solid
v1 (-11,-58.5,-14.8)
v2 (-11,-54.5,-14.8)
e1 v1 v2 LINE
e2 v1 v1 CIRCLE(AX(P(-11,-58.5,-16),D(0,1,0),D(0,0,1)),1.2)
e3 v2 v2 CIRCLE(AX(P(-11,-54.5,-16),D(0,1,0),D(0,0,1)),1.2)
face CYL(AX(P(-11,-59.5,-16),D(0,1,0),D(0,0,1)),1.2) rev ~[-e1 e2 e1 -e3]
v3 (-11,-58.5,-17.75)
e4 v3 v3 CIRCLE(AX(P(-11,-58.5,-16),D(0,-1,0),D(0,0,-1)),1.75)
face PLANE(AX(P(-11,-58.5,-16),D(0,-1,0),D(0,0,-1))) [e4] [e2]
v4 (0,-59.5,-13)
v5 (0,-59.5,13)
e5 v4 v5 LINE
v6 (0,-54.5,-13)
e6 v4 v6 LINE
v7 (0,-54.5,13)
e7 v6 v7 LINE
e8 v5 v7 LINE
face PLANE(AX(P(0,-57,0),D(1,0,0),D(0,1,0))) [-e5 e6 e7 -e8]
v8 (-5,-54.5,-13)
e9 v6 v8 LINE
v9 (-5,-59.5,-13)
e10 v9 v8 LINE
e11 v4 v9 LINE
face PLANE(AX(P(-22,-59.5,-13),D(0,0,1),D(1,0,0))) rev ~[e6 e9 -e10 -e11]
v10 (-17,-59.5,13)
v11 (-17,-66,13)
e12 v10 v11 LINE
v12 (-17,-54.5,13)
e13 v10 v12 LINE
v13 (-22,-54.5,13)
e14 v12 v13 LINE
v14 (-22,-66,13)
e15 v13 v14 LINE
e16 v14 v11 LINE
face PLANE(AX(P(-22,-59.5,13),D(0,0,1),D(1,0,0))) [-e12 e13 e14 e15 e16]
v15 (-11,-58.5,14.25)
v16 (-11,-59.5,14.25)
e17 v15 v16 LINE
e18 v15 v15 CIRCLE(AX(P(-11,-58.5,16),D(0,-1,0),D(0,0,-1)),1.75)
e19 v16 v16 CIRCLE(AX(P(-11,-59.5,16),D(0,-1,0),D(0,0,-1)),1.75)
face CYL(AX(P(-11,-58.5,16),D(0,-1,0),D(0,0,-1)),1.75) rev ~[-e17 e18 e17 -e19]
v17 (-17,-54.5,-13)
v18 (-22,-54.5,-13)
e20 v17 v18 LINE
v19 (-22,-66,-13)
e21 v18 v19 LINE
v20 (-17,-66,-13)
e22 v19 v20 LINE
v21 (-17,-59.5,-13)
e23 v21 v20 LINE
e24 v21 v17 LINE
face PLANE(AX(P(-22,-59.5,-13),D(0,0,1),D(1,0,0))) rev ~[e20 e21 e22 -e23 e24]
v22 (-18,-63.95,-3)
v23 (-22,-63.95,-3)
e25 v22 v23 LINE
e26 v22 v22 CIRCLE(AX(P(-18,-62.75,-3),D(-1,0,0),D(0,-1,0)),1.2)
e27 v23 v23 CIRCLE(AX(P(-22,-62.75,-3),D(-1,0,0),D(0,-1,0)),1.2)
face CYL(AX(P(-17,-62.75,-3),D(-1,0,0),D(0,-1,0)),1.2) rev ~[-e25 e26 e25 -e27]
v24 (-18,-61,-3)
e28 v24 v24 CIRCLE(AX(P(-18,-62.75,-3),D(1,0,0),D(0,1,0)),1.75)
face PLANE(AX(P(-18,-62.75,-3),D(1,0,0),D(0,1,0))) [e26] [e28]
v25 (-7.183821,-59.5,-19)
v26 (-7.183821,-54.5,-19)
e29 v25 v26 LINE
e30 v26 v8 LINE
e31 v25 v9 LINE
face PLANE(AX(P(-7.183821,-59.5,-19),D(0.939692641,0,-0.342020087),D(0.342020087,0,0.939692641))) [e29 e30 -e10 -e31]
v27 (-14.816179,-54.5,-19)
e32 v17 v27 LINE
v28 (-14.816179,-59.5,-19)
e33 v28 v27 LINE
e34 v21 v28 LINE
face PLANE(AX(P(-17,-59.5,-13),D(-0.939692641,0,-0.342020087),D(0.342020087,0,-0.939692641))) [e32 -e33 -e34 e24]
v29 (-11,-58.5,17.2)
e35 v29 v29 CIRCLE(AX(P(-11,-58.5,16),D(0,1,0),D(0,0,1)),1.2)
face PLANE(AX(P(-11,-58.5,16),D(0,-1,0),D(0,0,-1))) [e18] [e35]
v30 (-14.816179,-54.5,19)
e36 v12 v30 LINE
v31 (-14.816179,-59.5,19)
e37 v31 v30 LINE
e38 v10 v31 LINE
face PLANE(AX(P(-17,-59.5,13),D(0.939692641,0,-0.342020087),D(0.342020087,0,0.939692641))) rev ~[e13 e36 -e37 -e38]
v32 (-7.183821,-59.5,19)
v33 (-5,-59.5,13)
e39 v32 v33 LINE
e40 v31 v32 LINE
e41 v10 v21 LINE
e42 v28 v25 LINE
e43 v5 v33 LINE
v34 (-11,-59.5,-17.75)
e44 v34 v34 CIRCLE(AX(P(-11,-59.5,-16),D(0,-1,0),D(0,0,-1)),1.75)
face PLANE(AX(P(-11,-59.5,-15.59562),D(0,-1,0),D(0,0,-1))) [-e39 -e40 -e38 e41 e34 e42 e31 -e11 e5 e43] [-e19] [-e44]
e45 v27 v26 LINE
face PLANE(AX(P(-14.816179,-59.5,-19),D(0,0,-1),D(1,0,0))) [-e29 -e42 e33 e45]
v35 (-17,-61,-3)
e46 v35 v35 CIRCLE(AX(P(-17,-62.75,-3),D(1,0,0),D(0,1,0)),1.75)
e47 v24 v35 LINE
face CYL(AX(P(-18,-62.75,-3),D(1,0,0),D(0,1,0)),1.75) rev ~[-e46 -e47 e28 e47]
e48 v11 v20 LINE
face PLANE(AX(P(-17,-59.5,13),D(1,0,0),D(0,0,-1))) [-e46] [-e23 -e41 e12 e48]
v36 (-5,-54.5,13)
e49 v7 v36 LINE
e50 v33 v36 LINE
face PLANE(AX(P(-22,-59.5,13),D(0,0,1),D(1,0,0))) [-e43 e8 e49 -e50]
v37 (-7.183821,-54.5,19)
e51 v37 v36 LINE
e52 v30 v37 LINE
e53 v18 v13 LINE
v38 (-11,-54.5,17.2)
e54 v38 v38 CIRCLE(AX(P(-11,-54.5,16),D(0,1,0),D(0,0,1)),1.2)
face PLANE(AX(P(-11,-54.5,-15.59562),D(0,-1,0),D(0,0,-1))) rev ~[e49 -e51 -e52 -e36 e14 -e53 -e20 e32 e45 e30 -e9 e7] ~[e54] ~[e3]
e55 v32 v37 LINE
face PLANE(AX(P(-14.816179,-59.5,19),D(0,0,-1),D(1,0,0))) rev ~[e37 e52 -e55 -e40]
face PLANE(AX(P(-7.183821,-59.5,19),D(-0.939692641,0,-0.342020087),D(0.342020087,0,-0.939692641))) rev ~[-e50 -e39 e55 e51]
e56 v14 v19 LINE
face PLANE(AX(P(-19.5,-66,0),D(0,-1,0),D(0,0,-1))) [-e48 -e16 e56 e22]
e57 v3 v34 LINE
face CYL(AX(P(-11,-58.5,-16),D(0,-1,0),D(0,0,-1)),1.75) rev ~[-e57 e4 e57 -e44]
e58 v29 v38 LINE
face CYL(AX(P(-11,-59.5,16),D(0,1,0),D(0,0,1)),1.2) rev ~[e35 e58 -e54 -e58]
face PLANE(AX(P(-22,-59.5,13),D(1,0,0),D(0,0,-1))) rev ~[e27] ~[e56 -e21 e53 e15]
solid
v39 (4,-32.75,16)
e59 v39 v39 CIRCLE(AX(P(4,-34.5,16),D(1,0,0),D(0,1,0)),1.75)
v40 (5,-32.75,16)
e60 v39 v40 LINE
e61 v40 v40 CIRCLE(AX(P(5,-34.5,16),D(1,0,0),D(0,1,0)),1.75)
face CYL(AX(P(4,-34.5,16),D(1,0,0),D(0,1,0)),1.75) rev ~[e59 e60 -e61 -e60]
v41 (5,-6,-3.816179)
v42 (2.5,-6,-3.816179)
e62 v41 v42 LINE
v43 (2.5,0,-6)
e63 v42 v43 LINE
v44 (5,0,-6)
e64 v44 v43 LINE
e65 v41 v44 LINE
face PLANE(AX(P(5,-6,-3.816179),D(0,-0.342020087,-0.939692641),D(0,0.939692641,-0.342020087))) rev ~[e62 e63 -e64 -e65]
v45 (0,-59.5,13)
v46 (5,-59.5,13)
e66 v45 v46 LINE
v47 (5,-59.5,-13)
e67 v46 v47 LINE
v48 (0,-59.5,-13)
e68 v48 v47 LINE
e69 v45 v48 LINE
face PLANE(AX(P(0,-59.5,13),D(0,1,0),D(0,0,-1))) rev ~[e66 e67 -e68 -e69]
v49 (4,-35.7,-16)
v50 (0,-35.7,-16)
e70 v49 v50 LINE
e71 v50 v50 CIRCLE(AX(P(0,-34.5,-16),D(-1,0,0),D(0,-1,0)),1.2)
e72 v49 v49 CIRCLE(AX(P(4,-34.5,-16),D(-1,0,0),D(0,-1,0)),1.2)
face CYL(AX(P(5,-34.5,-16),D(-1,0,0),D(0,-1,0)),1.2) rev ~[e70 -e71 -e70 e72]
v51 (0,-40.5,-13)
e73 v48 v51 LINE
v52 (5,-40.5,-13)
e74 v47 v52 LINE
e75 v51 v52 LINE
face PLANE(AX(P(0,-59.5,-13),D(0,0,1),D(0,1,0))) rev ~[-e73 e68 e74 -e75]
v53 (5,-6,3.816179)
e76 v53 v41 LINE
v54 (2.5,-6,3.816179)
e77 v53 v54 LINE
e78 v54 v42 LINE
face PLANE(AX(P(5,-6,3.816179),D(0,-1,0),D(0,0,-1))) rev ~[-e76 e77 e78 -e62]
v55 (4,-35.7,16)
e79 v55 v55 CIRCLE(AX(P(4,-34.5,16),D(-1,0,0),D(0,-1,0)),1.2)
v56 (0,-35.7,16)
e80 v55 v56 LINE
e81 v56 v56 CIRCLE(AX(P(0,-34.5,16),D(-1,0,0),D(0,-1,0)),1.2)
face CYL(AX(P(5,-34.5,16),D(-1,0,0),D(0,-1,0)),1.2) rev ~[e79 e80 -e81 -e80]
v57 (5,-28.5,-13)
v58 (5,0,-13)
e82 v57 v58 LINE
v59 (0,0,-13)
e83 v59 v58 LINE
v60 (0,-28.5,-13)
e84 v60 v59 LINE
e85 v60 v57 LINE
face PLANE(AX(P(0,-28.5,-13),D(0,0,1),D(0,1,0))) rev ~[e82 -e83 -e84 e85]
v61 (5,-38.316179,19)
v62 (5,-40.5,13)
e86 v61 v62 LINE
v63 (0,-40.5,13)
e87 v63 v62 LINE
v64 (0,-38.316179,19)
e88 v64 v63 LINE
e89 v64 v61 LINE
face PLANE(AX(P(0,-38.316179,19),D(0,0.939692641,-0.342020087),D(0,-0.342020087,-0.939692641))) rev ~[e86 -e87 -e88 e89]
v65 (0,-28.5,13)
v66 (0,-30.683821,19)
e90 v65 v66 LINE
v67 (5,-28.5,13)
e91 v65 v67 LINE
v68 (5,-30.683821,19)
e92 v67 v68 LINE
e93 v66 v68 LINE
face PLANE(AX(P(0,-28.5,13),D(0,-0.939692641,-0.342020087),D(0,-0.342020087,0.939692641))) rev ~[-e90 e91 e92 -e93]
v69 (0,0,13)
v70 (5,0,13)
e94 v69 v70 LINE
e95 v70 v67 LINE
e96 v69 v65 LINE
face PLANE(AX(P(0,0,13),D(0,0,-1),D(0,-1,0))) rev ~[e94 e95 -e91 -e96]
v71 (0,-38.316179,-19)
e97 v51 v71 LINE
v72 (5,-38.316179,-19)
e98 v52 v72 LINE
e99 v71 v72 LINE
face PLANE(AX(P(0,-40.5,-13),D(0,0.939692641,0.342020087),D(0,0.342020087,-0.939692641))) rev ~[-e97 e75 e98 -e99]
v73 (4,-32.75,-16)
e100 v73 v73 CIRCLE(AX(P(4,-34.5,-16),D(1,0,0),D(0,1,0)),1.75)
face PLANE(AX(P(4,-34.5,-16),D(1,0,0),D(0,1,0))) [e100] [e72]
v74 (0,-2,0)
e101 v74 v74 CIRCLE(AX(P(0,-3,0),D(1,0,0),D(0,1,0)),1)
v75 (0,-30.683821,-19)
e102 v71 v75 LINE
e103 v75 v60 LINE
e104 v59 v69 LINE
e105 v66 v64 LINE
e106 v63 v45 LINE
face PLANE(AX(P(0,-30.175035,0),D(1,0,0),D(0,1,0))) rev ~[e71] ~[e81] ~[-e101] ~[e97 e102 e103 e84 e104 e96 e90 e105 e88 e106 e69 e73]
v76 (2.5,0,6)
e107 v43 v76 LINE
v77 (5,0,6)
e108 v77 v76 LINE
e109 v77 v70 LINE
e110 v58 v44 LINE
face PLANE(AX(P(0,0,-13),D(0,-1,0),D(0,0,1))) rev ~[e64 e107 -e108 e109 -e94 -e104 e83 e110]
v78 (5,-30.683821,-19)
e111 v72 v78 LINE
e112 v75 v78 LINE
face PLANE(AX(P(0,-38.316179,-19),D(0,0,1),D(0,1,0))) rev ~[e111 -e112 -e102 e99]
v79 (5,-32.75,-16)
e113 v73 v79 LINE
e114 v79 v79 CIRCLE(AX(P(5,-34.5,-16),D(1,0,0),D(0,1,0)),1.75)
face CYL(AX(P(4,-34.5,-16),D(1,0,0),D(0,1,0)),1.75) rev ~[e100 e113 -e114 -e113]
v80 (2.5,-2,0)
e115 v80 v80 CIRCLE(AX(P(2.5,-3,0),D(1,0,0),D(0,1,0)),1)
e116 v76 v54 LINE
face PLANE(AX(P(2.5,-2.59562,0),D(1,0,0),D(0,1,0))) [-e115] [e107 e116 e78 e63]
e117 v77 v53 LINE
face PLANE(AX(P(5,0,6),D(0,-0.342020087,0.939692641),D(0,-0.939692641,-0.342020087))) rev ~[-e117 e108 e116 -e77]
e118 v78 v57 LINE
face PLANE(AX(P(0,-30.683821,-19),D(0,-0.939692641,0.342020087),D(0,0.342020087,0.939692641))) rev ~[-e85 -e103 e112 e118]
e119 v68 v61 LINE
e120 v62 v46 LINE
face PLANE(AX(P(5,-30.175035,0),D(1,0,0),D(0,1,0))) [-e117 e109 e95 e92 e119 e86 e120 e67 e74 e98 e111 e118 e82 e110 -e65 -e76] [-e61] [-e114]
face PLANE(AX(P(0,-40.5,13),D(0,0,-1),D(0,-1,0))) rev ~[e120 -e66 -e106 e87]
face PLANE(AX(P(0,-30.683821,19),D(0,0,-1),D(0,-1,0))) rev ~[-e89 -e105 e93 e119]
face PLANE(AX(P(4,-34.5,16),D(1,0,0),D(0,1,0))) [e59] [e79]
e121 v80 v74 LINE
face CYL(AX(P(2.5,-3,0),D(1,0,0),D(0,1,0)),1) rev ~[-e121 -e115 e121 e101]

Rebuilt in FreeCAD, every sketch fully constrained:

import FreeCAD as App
import Part
import Sketcher

V = App.Vector
Q = App.Units.Quantity

doc = App.newDocument("Part")
body = doc.addObject("PartDesign::Body", "Body")

sketch1 = body.newObject("Sketcher::SketchObject", "Sketch")
sketch1.AttachmentSupport = (doc.getObject("YZ_Plane"), [""])
sketch1.MapMode = "FlatFace"
sketch1.addGeometry([
    Part.LineSegment(V(-60, 13, 0), V(-60, -13, 0)),
    Part.LineSegment(V(-60, -13, 0), V(-40, -13, 0)),
    Part.LineSegment(V(-40, -13, 0), V(-38, -19, 0)),
    Part.LineSegment(V(-38, -19, 0), V(-31, -19, 0)),
    Part.LineSegment(V(-31, -19, 0), V(-28, -13, 0)),
    Part.LineSegment(V(-28, -13, 0), V(0, -13, 0)),
    Part.LineSegment(V(0, -13, 0), V(0, 13, 0)),
    Part.LineSegment(V(0, 13, 0), V(-28, 13, 0)),
    Part.LineSegment(V(-28, 13, 0), V(-31, 19, 0)),
    Part.LineSegment(V(-31, 19, 0), V(-38, 19, 0)),
    Part.LineSegment(V(-38, 19, 0), V(-40, 13, 0)),
    Part.LineSegment(V(-40, 13, 0), V(-60, 13, 0)),
], False)
sketch1.addConstraint([
    Sketcher.Constraint("Coincident", 0, 2, 1, 1),
    Sketcher.Constraint("Coincident", 1, 2, 2, 1),
    Sketcher.Constraint("Coincident", 2, 2, 3, 1),
    Sketcher.Constraint("Coincident", 3, 2, 4, 1),
    Sketcher.Constraint("Coincident", 4, 2, 5, 1),
    Sketcher.Constraint("Coincident", 5, 2, 6, 1),
    Sketcher.Constraint("Coincident", 6, 2, 7, 1),
    Sketcher.Constraint("Coincident", 7, 2, 8, 1),
    Sketcher.Constraint("Coincident", 8, 2, 9, 1),
    Sketcher.Constraint("Coincident", 9, 2, 10, 1),
    Sketcher.Constraint("Coincident", 10, 2, 11, 1),
    Sketcher.Constraint("Coincident", 11, 2, 0, 1),
    Sketcher.Constraint("Vertical", 0),
    Sketcher.Constraint("Horizontal", 1),
    Sketcher.Constraint("Horizontal", 3),
    Sketcher.Constraint("Horizontal", 5),
    Sketcher.Constraint("Vertical", 6),
    Sketcher.Constraint("Horizontal", 7),
    Sketcher.Constraint("Horizontal", 9),
    Sketcher.Constraint("Horizontal", 11),
    Sketcher.Constraint("Symmetric", 5, 2, 6, 2, -1, 1),
    Sketcher.Constraint("Symmetric", 3, 2, 8, 2, -1),
    Sketcher.Constraint("Symmetric", 1, 2, 10, 2, -1),
    Sketcher.Constraint("Parallel", 2, 8),
    Sketcher.Constraint("Parallel", 4, 10),
    Sketcher.Constraint("Horizontal", 1, 2, 4, 2),
    Sketcher.Constraint("Vertical", 4, 2, 7, 2),
    Sketcher.Constraint("DistanceX", 1, 1, 1, 2, Q("19 mm")),
    Sketcher.Constraint("DistanceY", 0, 2, 0, 1, Q("26 mm")),
    Sketcher.Constraint("Angle", 2, Q("-70.000003 deg")),
    Sketcher.Constraint("DistanceX", 5, 1, 5, 2, Q("28.5 mm")),
    Sketcher.Constraint("DistanceY", 2, 2, -1, 1, Q("19 mm")),
    Sketcher.Constraint("DistanceX", 1, 2, 4, 2, Q("12 mm")),
])
pad1 = body.newObject("PartDesign::Pad", "Pad")
pad1.Profile = sketch1
pad1.Length = 5

sketch2 = body.newObject("Sketcher::SketchObject", "Sketch001")
sketch2.AttachmentSupport = (doc.getObject("YZ_Plane"), [""])
sketch2.MapMode = "FlatFace"
sketch2.AttachmentOffset = App.Placement(V(0, 0, 5), App.Rotation())
sketch2.addGeometry([
    Part.LineSegment(V(0, 6, 0), V(-6, 4, 0)),
    Part.LineSegment(V(-6, 4, 0), V(-6, -4, 0)),
    Part.LineSegment(V(-6, -4, 0), V(0, -6, 0)),
    Part.LineSegment(V(0, -6, 0), V(0, 6, 0)),
], False)
sketch2.addConstraint([
    Sketcher.Constraint("Coincident", 0, 2, 1, 1),
    Sketcher.Constraint("Coincident", 1, 2, 2, 1),
    Sketcher.Constraint("Coincident", 2, 2, 3, 1),
    Sketcher.Constraint("Coincident", 3, 2, 0, 1),
    Sketcher.Constraint("Vertical", 1),
    Sketcher.Constraint("Vertical", 3),
    Sketcher.Constraint("Symmetric", 2, 2, 3, 2, -1, 1),
    Sketcher.Constraint("Equal", 0, 2),
    Sketcher.Constraint("DistanceY", 3, 1, 3, 2, Q("12 mm")),
    Sketcher.Constraint("Angle", 0, Q("-160.000003 deg")),
    Sketcher.Constraint("DistanceX", 0, 2, -1, 1, Q("6 mm")),
])
pocket1 = body.newObject("PartDesign::Pocket", "Pocket")
pocket1.Profile = sketch2
pocket1.Length = 2.5

sketch3 = body.newObject("Sketcher::SketchObject", "Sketch002")
sketch3.AttachmentSupport = (doc.getObject("YZ_Plane"), [""])
sketch3.MapMode = "FlatFace"
sketch3.AttachmentOffset = App.Placement(V(0, 0, 5), App.Rotation())
sketch3.addGeometry([
    Part.Circle(V(-34.5, 16, 0), V(0, 0, 1), 1.2),
    Part.Circle(V(-34.5, -16, 0), V(0, 0, 1), 1.2),
], False)
sketch3.addConstraint([
    Sketcher.Constraint("Equal", 0, 1),
    Sketcher.Constraint("Symmetric", 0, 3, 1, 3, -1),
    Sketcher.Constraint("Diameter", 0, Q("2.4 mm")),
    Sketcher.Constraint("DistanceY", -1, 1, 0, 3, Q("16 mm")),
    Sketcher.Constraint("DistanceX", 0, 3, -1, 1, Q("34.5 mm")),
])
doc.recompute()
hole = body.newObject("PartDesign::Hole", "Hole")
hole.Profile = sketch3
hole.ThreadType = "None"
hole.Diameter = 2.4
hole.DepthType = "Dimension"
hole.Depth = 25
hole.DrillPoint = "Flat"
hole.HoleCutType = "Counterbore"
hole.HoleCutDiameter = 3.5
hole.HoleCutDepth = 1

sketch4 = body.newObject("Sketcher::SketchObject", "Sketch003")
sketch4.AttachmentSupport = (doc.getObject("YZ_Plane"), [""])
sketch4.MapMode = "FlatFace"
sketch4.AttachmentOffset = App.Placement(V(0, 0, 2.5), App.Rotation())
sketch4.addGeometry(Part.Circle(V(-3, 0, 0), V(0, 0, 1), 1), False)
sketch4.addConstraint([
    Sketcher.Constraint("PointOnObject", 0, 3, -1),
    Sketcher.Constraint("Diameter", 0, Q("2 mm")),
    Sketcher.Constraint("DistanceX", 0, 3, -1, 1, Q("3 mm")),
])
pocket2 = body.newObject("PartDesign::Pocket", "Pocket001")
pocket2.Profile = sketch4
pocket2.Length = 5
body2 = doc.addObject("PartDesign::Body", "Body001")

sketch5 = body2.newObject("Sketcher::SketchObject", "Sketch004")
sketch5.AttachmentSupport = (doc.getObject("YZ_Plane001"), [""])
sketch5.MapMode = "FlatFace"
sketch5.addGeometry([
    Part.LineSegment(V(-60, 13, 0), V(-60, -13, 0)),
    Part.LineSegment(V(-60, -13, 0), V(-54, -13, 0)),
    Part.LineSegment(V(-54, -13, 0), V(-54, 13, 0)),
    Part.LineSegment(V(-54, 13, 0), V(-60, 13, 0)),
], False)
sketch5.addConstraint([
    Sketcher.Constraint("Coincident", 0, 2, 1, 1),
    Sketcher.Constraint("Coincident", 1, 2, 2, 1),
    Sketcher.Constraint("Coincident", 2, 2, 3, 1),
    Sketcher.Constraint("Coincident", 3, 2, 0, 1),
    Sketcher.Constraint("Vertical", 0),
    Sketcher.Constraint("Horizontal", 1),
    Sketcher.Constraint("Vertical", 2),
    Sketcher.Constraint("Horizontal", 3),
    Sketcher.Constraint("DistanceX", 1, 1, 1, 2, Q("5 mm")),
    Sketcher.Constraint("DistanceY", 0, 2, 0, 1, Q("26 mm")),
    Sketcher.Constraint("DistanceY", 0, 2, -1, 1, Q("13 mm")),
    Sketcher.Constraint("DistanceX", 0, 2, -1, 1, Q("59.5 mm")),
])
pad2 = body2.newObject("PartDesign::Pad", "Pad001")
pad2.Profile = sketch5
pad2.Length = 22
pad2.Reversed = True

sketch6 = body2.newObject("Sketcher::SketchObject", "Sketch005")
sketch6.AttachmentSupport = (doc.getObject("XZ_Plane001"), [""])
sketch6.MapMode = "FlatFace"
sketch6.AttachmentOffset = App.Placement(V(0, 0, 59.5), App.Rotation())
sketch6.addGeometry([
    Part.LineSegment(V(-17, 13, 0), V(-22, 13, 0)),
    Part.LineSegment(V(-22, 13, 0), V(-22, -13, 0)),
    Part.LineSegment(V(-22, -13, 0), V(-17, -13, 0)),
    Part.LineSegment(V(-17, -13, 0), V(-17, 13, 0)),
], False)
sketch6.addConstraint([
    Sketcher.Constraint("Coincident", 0, 2, 1, 1),
    Sketcher.Constraint("Coincident", 1, 2, 2, 1),
    Sketcher.Constraint("Coincident", 2, 2, 3, 1),
    Sketcher.Constraint("Coincident", 3, 2, 0, 1),
    Sketcher.Constraint("Horizontal", 0),
    Sketcher.Constraint("Vertical", 1),
    Sketcher.Constraint("Horizontal", 2),
    Sketcher.Constraint("Vertical", 3),
    Sketcher.Constraint("DistanceX", 0, 2, 0, 1, Q("5 mm")),
    Sketcher.Constraint("DistanceY", 1, 2, 1, 1, Q("26 mm")),
    Sketcher.Constraint("DistanceX", 0, 2, -1, 1, Q("22 mm")),
    Sketcher.Constraint("DistanceY", -1, 1, 0, 2, Q("13 mm")),
])
pad3 = body2.newObject("PartDesign::Pad", "Pad002")
pad3.Profile = sketch6
pad3.Length = 6.5

sketch7 = body2.newObject("Sketcher::SketchObject", "Sketch006")
sketch7.AttachmentSupport = (doc.getObject("YZ_Plane001"), [""])
sketch7.MapMode = "FlatFace"
sketch7.AttachmentOffset = App.Placement(V(0, 0, -17), App.Rotation())
sketch7.addGeometry(Part.Circle(V(-62.8, -3, 0), V(0, 0, 1), 1.2), False)
sketch7.addConstraint([
    Sketcher.Constraint("Diameter", 0, Q("2.4 mm")),
    Sketcher.Constraint("DistanceY", 0, 3, -1, 1, Q("3 mm")),
    Sketcher.Constraint("DistanceX", 0, 3, -1, 1, Q("62.75 mm")),
])
doc.recompute()
hole2 = body2.newObject("PartDesign::Hole", "Hole001")
hole2.Profile = sketch7
hole2.ThreadType = "None"
hole2.Diameter = 2.4
hole2.DepthType = "Dimension"
hole2.Depth = 25
hole2.DrillPoint = "Flat"
hole2.HoleCutType = "Counterbore"
hole2.HoleCutDiameter = 3.5
hole2.HoleCutDepth = 1

sketch8 = body2.newObject("Sketcher::SketchObject", "Sketch007")
sketch8.AttachmentSupport = (doc.getObject("XZ_Plane001"), [""])
sketch8.MapMode = "FlatFace"
sketch8.AttachmentOffset = App.Placement(V(0, 0, 59.5), App.Rotation())
sketch8.addGeometry([
    Part.LineSegment(V(-17, -13, 0), V(-15, -19, 0)),
    Part.LineSegment(V(-15, -19, 0), V(-7, -19, 0)),
    Part.LineSegment(V(-7, -19, 0), V(-5, -13, 0)),
    Part.LineSegment(V(-5, -13, 0), V(-17, -13, 0)),
    Part.LineSegment(V(-15, 19, 0), V(-17, 13, 0)),
    Part.LineSegment(V(-17, 13, 0), V(-5, 13, 0)),
    Part.LineSegment(V(-5, 13, 0), V(-7, 19, 0)),
    Part.LineSegment(V(-7, 19, 0), V(-15, 19, 0)),
], False)
sketch8.addConstraint([
    Sketcher.Constraint("Coincident", 0, 2, 1, 1),
    Sketcher.Constraint("Coincident", 1, 2, 2, 1),
    Sketcher.Constraint("Coincident", 2, 2, 3, 1),
    Sketcher.Constraint("Coincident", 3, 2, 0, 1),
    Sketcher.Constraint("Coincident", 4, 2, 5, 1),
    Sketcher.Constraint("Coincident", 5, 2, 6, 1),
    Sketcher.Constraint("Coincident", 6, 2, 7, 1),
    Sketcher.Constraint("Coincident", 7, 2, 4, 1),
    Sketcher.Constraint("Horizontal", 1),
    Sketcher.Constraint("Horizontal", 3),
    Sketcher.Constraint("Horizontal", 5),
    Sketcher.Constraint("Horizontal", 7),
    Sketcher.Constraint("Symmetric", 3, 2, 4, 2, -1),
    Sketcher.Constraint("Symmetric", 1, 2, 6, 2, -1),
    Sketcher.Constraint("Parallel", 2, 4),
    Sketcher.Constraint("Parallel", 0, 6),
    Sketcher.Constraint("Vertical", 2, 2, 5, 2),
    Sketcher.Constraint("DistanceX", 3, 2, 3, 1, Q("12 mm")),
    Sketcher.Constraint("Angle", 0, Q("-70.000003 deg")),
    Sketcher.Constraint("DistanceY", 0, 2, -1, 1, Q("19 mm")),
    Sketcher.Constraint("DistanceX", 2, 2, -1, 1, Q("5 mm")),
    Sketcher.Constraint("DistanceY", 2, 2, -1, 1, Q("13 mm")),
])
pad4 = body2.newObject("PartDesign::Pad", "Pad003")
pad4.Profile = sketch8
pad4.Length = 5
pad4.Reversed = True

sketch9 = body2.newObject("Sketcher::SketchObject", "Sketch008")
sketch9.AttachmentSupport = (doc.getObject("XZ_Plane001"), [""])
sketch9.MapMode = "FlatFace"
sketch9.AttachmentOffset = App.Placement(V(0, 0, 59.5), App.Rotation())
sketch9.addGeometry([
    Part.Circle(V(-11, -16, 0), V(0, 0, 1), 1.2),
    Part.Circle(V(-11, 16, 0), V(0, 0, 1), 1.2),
], False)
sketch9.addConstraint([
    Sketcher.Constraint("Equal", 0, 1),
    Sketcher.Constraint("Symmetric", 0, 3, 1, 3, -1),
    Sketcher.Constraint("Diameter", 0, Q("2.4 mm")),
    Sketcher.Constraint("DistanceX", 0, 3, -1, 1, Q("11 mm")),
    Sketcher.Constraint("DistanceY", 0, 3, -1, 1, Q("16 mm")),
])
doc.recompute()
hole3 = body2.newObject("PartDesign::Hole", "Hole002")
hole3.Profile = sketch9
hole3.ThreadType = "None"
hole3.Diameter = 2.4
hole3.DepthType = "Dimension"
hole3.Depth = 25
hole3.DrillPoint = "Flat"
hole3.HoleCutType = "Counterbore"
hole3.HoleCutDiameter = 3.5
hole3.HoleCutDepth = 1

doc.recompute()
